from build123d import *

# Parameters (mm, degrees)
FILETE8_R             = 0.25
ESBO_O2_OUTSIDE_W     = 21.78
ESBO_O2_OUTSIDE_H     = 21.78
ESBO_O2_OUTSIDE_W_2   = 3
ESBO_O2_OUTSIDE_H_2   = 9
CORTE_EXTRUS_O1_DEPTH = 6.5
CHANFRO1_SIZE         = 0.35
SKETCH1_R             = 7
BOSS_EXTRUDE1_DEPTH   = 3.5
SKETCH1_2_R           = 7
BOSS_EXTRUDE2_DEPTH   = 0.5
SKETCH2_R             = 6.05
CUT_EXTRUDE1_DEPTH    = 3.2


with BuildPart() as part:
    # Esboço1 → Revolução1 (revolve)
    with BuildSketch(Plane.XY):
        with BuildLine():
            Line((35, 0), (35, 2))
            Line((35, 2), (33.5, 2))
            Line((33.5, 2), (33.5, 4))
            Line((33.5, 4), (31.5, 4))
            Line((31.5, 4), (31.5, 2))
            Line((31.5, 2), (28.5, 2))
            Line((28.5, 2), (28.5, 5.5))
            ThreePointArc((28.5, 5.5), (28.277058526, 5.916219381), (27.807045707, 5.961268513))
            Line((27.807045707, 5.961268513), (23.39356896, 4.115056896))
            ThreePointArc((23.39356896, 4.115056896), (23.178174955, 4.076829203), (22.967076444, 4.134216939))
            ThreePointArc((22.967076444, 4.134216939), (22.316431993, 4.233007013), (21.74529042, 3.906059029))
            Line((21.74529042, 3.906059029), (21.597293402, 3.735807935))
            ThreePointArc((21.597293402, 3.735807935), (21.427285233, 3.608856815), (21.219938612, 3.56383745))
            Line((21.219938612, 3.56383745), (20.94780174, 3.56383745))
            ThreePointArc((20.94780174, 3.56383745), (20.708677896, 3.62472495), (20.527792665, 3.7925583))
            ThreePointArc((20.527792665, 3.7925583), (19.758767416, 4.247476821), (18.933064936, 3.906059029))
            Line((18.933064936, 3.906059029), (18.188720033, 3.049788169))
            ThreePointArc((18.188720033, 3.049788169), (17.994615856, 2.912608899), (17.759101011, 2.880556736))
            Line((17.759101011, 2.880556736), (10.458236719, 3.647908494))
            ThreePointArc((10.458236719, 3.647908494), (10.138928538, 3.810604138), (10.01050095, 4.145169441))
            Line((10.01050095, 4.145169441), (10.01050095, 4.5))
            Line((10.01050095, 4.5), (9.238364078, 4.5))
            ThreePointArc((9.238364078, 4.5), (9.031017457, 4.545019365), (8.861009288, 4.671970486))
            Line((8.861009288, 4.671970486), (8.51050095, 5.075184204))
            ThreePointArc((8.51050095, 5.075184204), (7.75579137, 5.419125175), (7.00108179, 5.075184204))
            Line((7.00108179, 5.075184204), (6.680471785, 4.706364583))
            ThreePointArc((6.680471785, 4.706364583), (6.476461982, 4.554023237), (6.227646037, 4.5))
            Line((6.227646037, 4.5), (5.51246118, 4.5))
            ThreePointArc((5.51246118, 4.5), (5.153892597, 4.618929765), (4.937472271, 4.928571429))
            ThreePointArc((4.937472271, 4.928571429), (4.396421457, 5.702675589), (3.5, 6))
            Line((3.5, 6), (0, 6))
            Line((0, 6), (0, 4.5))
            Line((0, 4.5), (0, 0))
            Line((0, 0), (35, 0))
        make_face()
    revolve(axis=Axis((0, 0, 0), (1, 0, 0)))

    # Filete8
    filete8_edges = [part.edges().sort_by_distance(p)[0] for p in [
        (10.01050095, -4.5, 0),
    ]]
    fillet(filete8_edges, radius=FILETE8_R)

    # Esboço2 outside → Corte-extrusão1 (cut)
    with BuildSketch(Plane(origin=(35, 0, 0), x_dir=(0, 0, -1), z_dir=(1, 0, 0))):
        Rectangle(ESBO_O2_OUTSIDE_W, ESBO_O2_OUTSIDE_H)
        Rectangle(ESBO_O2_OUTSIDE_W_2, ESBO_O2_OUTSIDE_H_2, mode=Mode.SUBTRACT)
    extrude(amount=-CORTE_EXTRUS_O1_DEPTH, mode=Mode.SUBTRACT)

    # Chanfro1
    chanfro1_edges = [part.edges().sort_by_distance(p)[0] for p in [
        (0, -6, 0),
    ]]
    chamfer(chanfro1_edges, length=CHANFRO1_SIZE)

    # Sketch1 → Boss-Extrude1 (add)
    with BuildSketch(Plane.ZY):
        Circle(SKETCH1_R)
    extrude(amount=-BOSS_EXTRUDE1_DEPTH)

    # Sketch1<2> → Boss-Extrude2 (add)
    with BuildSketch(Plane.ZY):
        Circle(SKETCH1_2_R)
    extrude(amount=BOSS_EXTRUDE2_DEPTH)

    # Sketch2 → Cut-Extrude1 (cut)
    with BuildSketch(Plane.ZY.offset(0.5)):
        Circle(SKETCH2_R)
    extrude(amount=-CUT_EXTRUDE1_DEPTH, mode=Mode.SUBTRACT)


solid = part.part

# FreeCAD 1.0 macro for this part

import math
import FreeCAD as App
import Part
import Sketcher
from FreeCAD import Vector
Q = App.Units.Quantity


def edges_at(feature, points):
    """Names of the edges that pass closest to the given points."""
    edges = feature.Shape.Edges
    near = lambda p: min(range(len(edges)), key=lambda i: edges[i].distToShape(Part.Vertex(*p))[0])
    return sorted({f"Edge{near(p) + 1}" for p in points})


def add_polygon(sketch, points):
    """Adds a closed chain of lines whose ends are joined by coincident constraints."""
    first, n = sketch.GeometryCount, len(points)
    for a, b in zip(points, points[1:] + points[:1]):
        sketch.addGeometry(Part.LineSegment(App.Vector(*a, 0), App.Vector(*b, 0)), False)
    for i in range(n):
        sketch.addConstraint(Sketcher.Constraint("Coincident", first + i, 2, first + (i + 1) % n, 1))

doc = App.newDocument("Part")
body = doc.addObject("PartDesign::Body", "Body")

sketch1 = body.newObject("Sketcher::SketchObject", "Sketch")
sketch1.AttachmentSupport = (doc.getObject("XY_Plane"), [""])
sketch1.MapMode = "FlatFace"
sketch1.addGeometry([
    Part.LineSegment(Vector(35, 0, 0), Vector(35, 2, 0)),
    Part.LineSegment(Vector(35, 2, 0), Vector(33.5, 2, 0)),
    Part.LineSegment(Vector(33.5, 2, 0), Vector(33.5, 4, 0)),
    Part.LineSegment(Vector(33.5, 4, 0), Vector(31.5, 4, 0)),
    Part.LineSegment(Vector(31.5, 4, 0), Vector(31.5, 2, 0)),
    Part.LineSegment(Vector(31.5, 2, 0), Vector(28.5, 2, 0)),
    Part.LineSegment(Vector(28.5, 2, 0), Vector(28.5, 5.5, 0)),
    Part.ArcOfCircle(Part.Circle(Vector(28, 5.5, 0), Vector(0, 0, 1), 0.5), math.radians(0), math.radians(112.700158)),
    Part.LineSegment(Vector(27.807046, 5.961269, 0), Vector(23.393569, 4.115057, 0)),
    Part.ArcOfCircle(Part.Circle(Vector(23.200615, 4.576325, 0), Vector(0, 0, 1), 0.5), math.radians(-117.844689), math.radians(-67.299842)),
    Part.ArcOfCircle(Part.Circle(Vector(22.5, 3.25, 0), Vector(0, 0, 1), 1), math.radians(62.155311), math.radians(139)),
    Part.LineSegment(Vector(21.74529, 3.906059, 0), Vector(21.597293, 3.735808, 0)),
    Part.ArcOfCircle(Part.Circle(Vector(21.219939, 4.063837, 0), Vector(0, 0, 1), 0.5), math.radians(-90), math.radians(-41)),
    Part.LineSegment(Vector(21.219939, 3.563837, 0), Vector(20.947802, 3.563837, 0)),
    Part.ArcOfCircle(Part.Circle(Vector(20.947802, 4.063837, 0), Vector(0, 0, 1), 0.5), math.radians(-147.142036), math.radians(-90)),
    Part.ArcOfCircle(Part.Circle(Vector(19.687775, 3.25, 0), Vector(0, 0, 1), 1), math.radians(32.857964), math.radians(139)),
    Part.LineSegment(Vector(18.933065, 3.906059, 0), Vector(18.18872, 3.049788, 0)),
    Part.ArcOfCircle(Part.Circle(Vector(17.811365, 3.377818, 0), Vector(0, 0, 1), 0.5), math.radians(-96), math.radians(-41)),
    Part.LineSegment(Vector(17.759101, 2.880557, 0), Vector(10.458237, 3.647908, 0)),
    Part.ArcOfCircle(Part.Circle(Vector(10.510501, 4.145169, 0), Vector(0, 0, 1), 0.5), math.radians(-180), math.radians(-96)),
    Part.LineSegment(Vector(10.010501, 4.145169, 0), Vector(10.010501, 4.5, 0)),
    Part.LineSegment(Vector(10.010501, 4.5, 0), Vector(9.238364, 4.5, 0)),
    Part.ArcOfCircle(Part.Circle(Vector(9.238364, 5, 0), Vector(0, 0, 1), 0.5), math.radians(-139), math.radians(-90)),
    Part.LineSegment(Vector(8.861009, 4.67197, 0), Vector(8.510501, 5.075184, 0)),
    Part.ArcOfCircle(Part.Circle(Vector(7.755791, 4.419125, 0), Vector(0, 0, 1), 1), math.radians(41), math.radians(139)),
    Part.LineSegment(Vector(7.001082, 5.075184, 0), Vector(6.680472, 4.706365, 0)),
    Part.ArcOfCircle(Part.Circle(Vector(6.227646, 5.1, 0), Vector(0, 0, 1), 0.6), math.radians(-90), math.radians(-41)),
    Part.LineSegment(Vector(6.227646, 4.5, 0), Vector(5.512461, 4.5, 0)),
    Part.ArcOfCircle(Part.Circle(Vector(5.512461, 5.1, 0), Vector(0, 0, 1), 0.6), math.radians(-163.39845), math.radians(-90)),
    Part.ArcOfCircle(Part.Circle(Vector(3.5, 4.5, 0), Vector(0, 0, 1), 1.5), math.radians(16.60155), math.radians(90)),
    Part.LineSegment(Vector(3.5, 6, 0), Vector(0, 6, 0)),
    Part.LineSegment(Vector(0, 6, 0), Vector(0, 0, 0)),
    Part.LineSegment(Vector(0, 0, 0), Vector(35, 0, 0)),
], False)
sketch1.addConstraint([
    Sketcher.Constraint("Coincident", 0, 2, 1, 1),
    Sketcher.Constraint("Coincident", 1, 2, 2, 1),
    Sketcher.Constraint("Coincident", 2, 2, 3, 1),
    Sketcher.Constraint("Coincident", 3, 2, 4, 1),
    Sketcher.Constraint("Coincident", 4, 2, 5, 1),
    Sketcher.Constraint("Coincident", 5, 2, 6, 1),
    Sketcher.Constraint("Tangent", 6, 2, 7, 1),
    Sketcher.Constraint("Tangent", 7, 2, 8, 1),
    Sketcher.Constraint("Tangent", 8, 2, 9, 2),
    Sketcher.Constraint("Tangent", 9, 1, 10, 1),
    Sketcher.Constraint("Tangent", 10, 2, 11, 1),
    Sketcher.Constraint("Tangent", 11, 2, 12, 2),
    Sketcher.Constraint("Tangent", 12, 1, 13, 1),
    Sketcher.Constraint("Tangent", 13, 2, 14, 2),
    Sketcher.Constraint("Tangent", 14, 1, 15, 1),
    Sketcher.Constraint("Tangent", 15, 2, 16, 1),
    Sketcher.Constraint("Tangent", 16, 2, 17, 2),
    Sketcher.Constraint("Tangent", 17, 1, 18, 1),
    Sketcher.Constraint("Tangent", 18, 2, 19, 2),
    Sketcher.Constraint("Tangent", 19, 1, 20, 1),
    Sketcher.Constraint("Coincident", 20, 2, 21, 1),
    Sketcher.Constraint("Tangent", 21, 2, 22, 2),
    Sketcher.Constraint("Tangent", 22, 1, 23, 1),
    Sketcher.Constraint("Tangent", 23, 2, 24, 1),
    Sketcher.Constraint("Tangent", 24, 2, 25, 1),
    Sketcher.Constraint("Tangent", 25, 2, 26, 2),
    Sketcher.Constraint("Tangent", 26, 1, 27, 1),
    Sketcher.Constraint("Tangent", 27, 2, 28, 2),
    Sketcher.Constraint("Tangent", 28, 1, 29, 1),
    Sketcher.Constraint("Tangent", 29, 2, 30, 1),
    Sketcher.Constraint("Coincident", 30, 2, 31, 1),
    Sketcher.Constraint("Coincident", 31, 2, 32, 1),
    Sketcher.Constraint("Coincident", 32, 2, 0, 1),
    Sketcher.Constraint("Vertical", 0),
    Sketcher.Constraint("Horizontal", 1),
    Sketcher.Constraint("Vertical", 2),
    Sketcher.Constraint("Horizontal", 3),
    Sketcher.Constraint("Vertical", 4),
    Sketcher.Constraint("Horizontal", 5),
    Sketcher.Constraint("Vertical", 6),
    Sketcher.Constraint("Horizontal", 13),
    Sketcher.Constraint("Vertical", 20),
    Sketcher.Constraint("Horizontal", 21),
    Sketcher.Constraint("Horizontal", 27),
    Sketcher.Constraint("Horizontal", 30),
    Sketcher.Constraint("Vertical", 31),
    Sketcher.Constraint("Horizontal", 32),
    Sketcher.Constraint("Coincident", 31, 2, -1, 1),
    Sketcher.Constraint("Equal", 7, 9),
    Sketcher.Constraint("Equal", 9, 12),
    Sketcher.Constraint("Equal", 12, 14),
    Sketcher.Constraint("Equal", 10, 15),
    Sketcher.Constraint("Equal", 14, 17),
    Sketcher.Constraint("Equal", 17, 19),
    Sketcher.Constraint("Equal", 19, 22),
    Sketcher.Constraint("Equal", 15, 24),
    Sketcher.Constraint("Equal", 26, 28),
    Sketcher.Constraint("Parallel", 11, 16),
    Sketcher.Constraint("Parallel", 16, 25),
    Sketcher.Constraint("Horizontal", 10, 3, 15, 3),
    Sketcher.Constraint("Horizontal", 1, 2, 4, 2),
    Sketcher.Constraint("Horizontal", 29, 3, 20, 2),
    Sketcher.Constraint("Horizontal", 23, 2, 24, 2),
    Sketcher.Constraint("Horizontal", 21, 2, 26, 1),
    Sketcher.Constraint("Equal", 3, 0),
    Sketcher.Constraint("Equal", 0, 2),
    Sketcher.Constraint("Equal", 30, 6),
    Sketcher.Constraint("Radius", 10, Q("1 mm")),
    Sketcher.Constraint("Radius", 7, Q("0.5 mm")),
    Sketcher.Constraint("Radius", 26, Q("0.6 mm")),
    Sketcher.Constraint("Radius", 29, Q("1.5 mm")),
    Sketcher.Constraint("DistanceX", 3, 2, 3, 1, Q("2 mm")),
    Sketcher.Constraint("DistanceX", 5, 2, 5, 1, Q("3 mm")),
    Sketcher.Constraint("DistanceX", 32, 1, 32, 2, Q("35 mm")),
    Sketcher.Constraint("DistanceY", 31, 2, 31, 1, Q("6 mm")),
    Sketcher.Constraint("Angle", 11, Q("-131 deg")),
    Sketcher.Constraint("Angle", 18, Q("174 deg")),
    Sketcher.Constraint("DistanceX", 1, 2, 1, 1, Q("1.5 mm")),
    Sketcher.Constraint("DistanceX", 30, 2, 30, 1, Q("3.5 mm")),
    Sketcher.Constraint("DistanceX", 10, 3, 1, 2, Q("11 mm")),
    Sketcher.Constraint("DistanceX", 23, 2, 20, 2, Q("1.5 mm")),
    Sketcher.Constraint("DistanceY", -1, 1, 10, 3, Q("3.25 mm")),
    Sketcher.Constraint("DistanceX", 22, 3, 17, 3, Q("8.573001 mm")),
    Sketcher.Constraint("DistanceY", 17, 1, 14, 1, Q("0.912002 mm")),
    Sketcher.Constraint("DistanceY", 20, 1, 20, 2, Q("0.354831 mm")),
    Sketcher.Constraint("DistanceX", -1, 1, 14, 3, Q("20.947802 mm")),
    Sketcher.Constraint("DistanceX", -1, 1, 19, 3, Q("10.510501 mm")),
    Sketcher.Constraint("DistanceY", -1, 1, 7, 2, Q("5.961269 mm")),
])
revolution = body.newObject("PartDesign::Revolution", "Revolution")
revolution.Profile = sketch1
revolution.ReferenceAxis = (sketch1, ["H_Axis"])
revolution.Angle = 360
doc.recompute()

fillet = body.newObject("PartDesign::Fillet", "Fillet")
fillet.Base = (revolution, edges_at(revolution, [(10.011, -4.5, 0)]))
fillet.Radius = 0.25

sketch2 = body.newObject("Sketcher::SketchObject", "Sketch001")
sketch2.AttachmentSupport = (doc.getObject("YZ_Plane"), [""])
sketch2.MapMode = "FlatFace"
sketch2.AttachmentOffset = App.Placement(Vector(0, 0, 35), App.Rotation())
add_polygon(sketch2, [(10.89, 10.89), (-10.89, 10.89), (-10.89, -10.89), (10.89, -10.89)])
add_polygon(sketch2, [(-4.5, -1.5), (-4.5, 1.5), (4.5, 1.5), (4.5, -1.5)])
sketch2.addConstraint([
    Sketcher.Constraint("Horizontal", 0),
    Sketcher.Constraint("Vertical", 1),
    Sketcher.Constraint("Horizontal", 2),
    Sketcher.Constraint("Vertical", 3),
    Sketcher.Constraint("Vertical", 4),
    Sketcher.Constraint("Horizontal", 5),
    Sketcher.Constraint("Vertical", 6),
    Sketcher.Constraint("Horizontal", 7),
    Sketcher.Constraint("Symmetric", 0, 2, 2, 2, -1, 1),
    Sketcher.Constraint("Symmetric", 4, 2, 6, 2, -1, 1),
    Sketcher.Constraint("Equal", 2, 1),
    Sketcher.Constraint("DistanceX", 5, 1, 5, 2, Q("9 mm")),
    Sketcher.Constraint("DistanceY", 4, 1, 4, 2, Q("3 mm")),
    Sketcher.Constraint("DistanceX", 0, 2, 0, 1, Q("21.78 mm")),
])
pocket1 = body.newObject("PartDesign::Pocket", "Pocket")
pocket1.Profile = sketch2
pocket1.Length = 6.5
doc.recompute()

chamfer = body.newObject("PartDesign::Chamfer", "Chamfer")
chamfer.Base = (pocket1, edges_at(pocket1, [(0, -6, 0)]))
chamfer.Size = 0.35

sketch3 = body.newObject("Sketcher::SketchObject", "Sketch002")
sketch3.AttachmentSupport = (doc.getObject("YZ_Plane"), [""])
sketch3.MapMode = "FlatFace"
sketch3.addGeometry(Part.Circle(Vector(0, 0, 0), Vector(0, 0, 1), 7), False)
sketch3.addConstraint([
    Sketcher.Constraint("Coincident", 0, 3, -1, 1),
    Sketcher.Constraint("Diameter", 0, Q("14 mm")),
])
pad1 = body.newObject("PartDesign::Pad", "Pad")
pad1.Profile = sketch3
pad1.Length = 3.5

sketch4 = body.newObject("Sketcher::SketchObject", "Sketch003")
sketch4.AttachmentSupport = (doc.getObject("YZ_Plane"), [""])
sketch4.MapMode = "FlatFace"
sketch4.addGeometry(Part.Circle(Vector(0, 0, 0), Vector(0, 0, 1), 7), False)
sketch4.addConstraint([
    Sketcher.Constraint("Coincident", 0, 3, -1, 1),
    Sketcher.Constraint("Diameter", 0, Q("14 mm")),
])
pad2 = body.newObject("PartDesign::Pad", "Pad001")
pad2.Profile = sketch4
pad2.Length = 0.5
pad2.Reversed = True

sketch5 = body.newObject("Sketcher::SketchObject", "Sketch004")
sketch5.AttachmentSupport = (doc.getObject("YZ_Plane"), [""])
sketch5.MapMode = "FlatFace"
sketch5.AttachmentOffset = App.Placement(Vector(0, 0, -0.5), App.Rotation())
sketch5.addGeometry(Part.Circle(Vector(0, 0, 0), Vector(0, 0, 1), 6.05), False)
sketch5.addConstraint([
    Sketcher.Constraint("Coincident", 0, 3, -1, 1),
    Sketcher.Constraint("Diameter", 0, Q("12.1 mm")),
])
pocket2 = body.newObject("PartDesign::Pocket", "Pocket001")
pocket2.Profile = sketch5
pocket2.Length = 3.2
pocket2.Reversed = True

doc.recompute()
